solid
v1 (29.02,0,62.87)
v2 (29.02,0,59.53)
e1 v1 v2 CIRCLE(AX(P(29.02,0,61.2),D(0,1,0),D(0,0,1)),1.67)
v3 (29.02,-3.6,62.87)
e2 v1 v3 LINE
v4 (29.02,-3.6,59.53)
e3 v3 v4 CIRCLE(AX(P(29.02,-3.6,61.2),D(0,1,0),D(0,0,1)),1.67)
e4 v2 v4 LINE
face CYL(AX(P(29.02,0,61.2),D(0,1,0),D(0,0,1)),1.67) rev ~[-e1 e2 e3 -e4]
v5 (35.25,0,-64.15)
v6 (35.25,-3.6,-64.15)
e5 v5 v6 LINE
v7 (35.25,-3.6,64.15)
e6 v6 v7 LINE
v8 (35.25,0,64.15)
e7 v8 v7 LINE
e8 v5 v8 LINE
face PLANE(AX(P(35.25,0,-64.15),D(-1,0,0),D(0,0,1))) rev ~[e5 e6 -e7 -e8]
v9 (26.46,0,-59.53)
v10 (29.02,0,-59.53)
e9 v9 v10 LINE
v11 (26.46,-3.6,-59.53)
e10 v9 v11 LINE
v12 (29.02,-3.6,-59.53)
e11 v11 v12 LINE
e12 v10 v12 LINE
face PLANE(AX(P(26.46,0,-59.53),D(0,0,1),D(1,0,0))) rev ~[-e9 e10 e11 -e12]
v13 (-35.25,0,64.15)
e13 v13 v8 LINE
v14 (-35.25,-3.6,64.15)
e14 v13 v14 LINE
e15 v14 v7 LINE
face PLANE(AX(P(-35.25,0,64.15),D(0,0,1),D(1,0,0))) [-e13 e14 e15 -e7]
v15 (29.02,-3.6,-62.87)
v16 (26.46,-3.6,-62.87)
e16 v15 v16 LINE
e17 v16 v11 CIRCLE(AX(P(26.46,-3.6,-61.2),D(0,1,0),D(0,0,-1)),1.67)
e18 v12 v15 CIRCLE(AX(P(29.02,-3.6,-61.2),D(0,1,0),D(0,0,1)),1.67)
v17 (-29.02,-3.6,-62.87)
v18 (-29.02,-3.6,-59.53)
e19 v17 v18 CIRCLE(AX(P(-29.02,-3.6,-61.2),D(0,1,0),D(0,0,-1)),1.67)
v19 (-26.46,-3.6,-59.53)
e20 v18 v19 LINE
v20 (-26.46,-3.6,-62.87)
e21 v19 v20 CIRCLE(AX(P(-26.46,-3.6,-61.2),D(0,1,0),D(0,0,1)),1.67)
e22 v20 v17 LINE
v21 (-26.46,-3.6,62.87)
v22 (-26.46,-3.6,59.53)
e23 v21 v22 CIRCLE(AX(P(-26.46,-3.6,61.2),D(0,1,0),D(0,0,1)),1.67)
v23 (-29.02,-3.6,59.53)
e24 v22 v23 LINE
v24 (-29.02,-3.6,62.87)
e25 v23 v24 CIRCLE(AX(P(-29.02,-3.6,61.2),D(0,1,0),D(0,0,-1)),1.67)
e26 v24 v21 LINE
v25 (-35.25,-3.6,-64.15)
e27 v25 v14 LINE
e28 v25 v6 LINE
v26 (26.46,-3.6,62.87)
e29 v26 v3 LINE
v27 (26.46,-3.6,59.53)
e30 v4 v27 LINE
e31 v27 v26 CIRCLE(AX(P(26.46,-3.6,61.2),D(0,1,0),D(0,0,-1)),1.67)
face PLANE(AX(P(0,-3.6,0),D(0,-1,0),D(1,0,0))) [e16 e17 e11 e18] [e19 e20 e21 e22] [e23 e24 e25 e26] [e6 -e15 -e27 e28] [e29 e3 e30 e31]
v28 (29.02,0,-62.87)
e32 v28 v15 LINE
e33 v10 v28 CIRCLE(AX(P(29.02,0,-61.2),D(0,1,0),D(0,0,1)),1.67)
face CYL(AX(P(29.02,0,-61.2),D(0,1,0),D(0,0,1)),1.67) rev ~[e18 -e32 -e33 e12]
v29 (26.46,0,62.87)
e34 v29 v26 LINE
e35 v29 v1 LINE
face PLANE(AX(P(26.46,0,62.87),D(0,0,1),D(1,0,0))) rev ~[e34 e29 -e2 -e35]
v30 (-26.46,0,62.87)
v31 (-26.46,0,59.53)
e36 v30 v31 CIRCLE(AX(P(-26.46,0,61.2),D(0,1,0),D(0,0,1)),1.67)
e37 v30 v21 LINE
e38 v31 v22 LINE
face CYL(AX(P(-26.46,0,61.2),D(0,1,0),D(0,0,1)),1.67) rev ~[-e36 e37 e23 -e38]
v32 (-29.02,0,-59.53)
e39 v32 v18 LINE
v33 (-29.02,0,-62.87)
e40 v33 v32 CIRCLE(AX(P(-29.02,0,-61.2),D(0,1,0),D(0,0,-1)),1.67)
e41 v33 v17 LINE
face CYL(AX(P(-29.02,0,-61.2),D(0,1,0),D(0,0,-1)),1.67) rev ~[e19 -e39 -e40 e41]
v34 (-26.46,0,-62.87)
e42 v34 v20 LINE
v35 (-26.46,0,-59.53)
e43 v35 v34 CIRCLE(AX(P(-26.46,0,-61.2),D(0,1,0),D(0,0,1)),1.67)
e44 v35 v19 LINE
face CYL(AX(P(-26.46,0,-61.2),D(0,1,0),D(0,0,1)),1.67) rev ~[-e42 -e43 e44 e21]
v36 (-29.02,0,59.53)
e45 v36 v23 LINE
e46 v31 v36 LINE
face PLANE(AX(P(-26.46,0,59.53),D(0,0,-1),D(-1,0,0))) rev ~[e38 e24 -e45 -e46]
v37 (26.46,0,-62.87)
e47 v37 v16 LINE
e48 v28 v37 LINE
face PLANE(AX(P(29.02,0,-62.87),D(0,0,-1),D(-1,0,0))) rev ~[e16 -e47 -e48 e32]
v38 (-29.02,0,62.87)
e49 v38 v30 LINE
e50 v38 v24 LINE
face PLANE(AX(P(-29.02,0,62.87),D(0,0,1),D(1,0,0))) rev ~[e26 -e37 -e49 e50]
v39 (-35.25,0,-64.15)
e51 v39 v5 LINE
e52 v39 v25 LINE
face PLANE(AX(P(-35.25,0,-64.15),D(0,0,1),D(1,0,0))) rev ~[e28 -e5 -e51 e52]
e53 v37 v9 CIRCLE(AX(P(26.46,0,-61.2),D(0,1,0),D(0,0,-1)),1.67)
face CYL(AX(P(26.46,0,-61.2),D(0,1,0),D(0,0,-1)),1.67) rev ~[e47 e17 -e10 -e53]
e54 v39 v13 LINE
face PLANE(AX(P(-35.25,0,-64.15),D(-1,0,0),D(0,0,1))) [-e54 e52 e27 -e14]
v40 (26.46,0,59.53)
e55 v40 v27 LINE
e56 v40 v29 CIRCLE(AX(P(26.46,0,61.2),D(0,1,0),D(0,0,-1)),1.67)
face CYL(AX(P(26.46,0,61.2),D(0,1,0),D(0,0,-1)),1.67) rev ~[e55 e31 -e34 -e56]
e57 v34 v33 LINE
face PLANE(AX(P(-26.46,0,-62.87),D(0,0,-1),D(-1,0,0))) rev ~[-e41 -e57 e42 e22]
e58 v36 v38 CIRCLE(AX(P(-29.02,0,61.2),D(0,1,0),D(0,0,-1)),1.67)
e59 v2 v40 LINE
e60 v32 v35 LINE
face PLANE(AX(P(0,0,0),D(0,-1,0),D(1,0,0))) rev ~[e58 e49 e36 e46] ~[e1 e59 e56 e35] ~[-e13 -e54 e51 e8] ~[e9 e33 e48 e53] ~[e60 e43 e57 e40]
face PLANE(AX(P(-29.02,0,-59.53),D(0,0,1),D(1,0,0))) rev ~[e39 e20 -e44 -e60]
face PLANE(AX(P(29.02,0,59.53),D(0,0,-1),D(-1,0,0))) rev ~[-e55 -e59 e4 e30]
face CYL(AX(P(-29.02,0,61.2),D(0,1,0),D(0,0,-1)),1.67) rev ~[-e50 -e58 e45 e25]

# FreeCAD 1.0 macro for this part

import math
import FreeCAD as App
import Part
import Sketcher

doc = App.newDocument("Part")
body = doc.addObject("PartDesign::Body", "Body")

# Sketch on XZ plane
sketch1 = doc.addObject("Sketcher::SketchObject", "Sketch")
body.addObject(sketch1)
sketch1.AttachmentSupport = (doc.XZ_Plane, [""])
sketch1.MapMode = "FlatFace"
sketch1.addGeometry([
    Part.LineSegment(App.Vector(-35.2, 64.2, 0), App.Vector(-35.2, -64.2, 0)),  # 0
    Part.LineSegment(App.Vector(-35.2, -64.2, 0), App.Vector(35.2, -64.2, 0)),  # 1
    Part.LineSegment(App.Vector(35.2, -64.2, 0), App.Vector(35.2, 64.2, 0)),  # 2
    Part.LineSegment(App.Vector(35.2, 64.2, 0), App.Vector(-35.2, 64.2, 0)),  # 3
    Part.ArcOfCircle(Part.Circle(App.Vector(-26.5, -61.2, 0), App.Vector(0, 0, 1), 1.7), math.radians(-90), math.radians(90)),  # 4
    Part.LineSegment(App.Vector(-26.5, -62.9, 0), App.Vector(-29, -62.9, 0)),  # 5
    Part.ArcOfCircle(Part.Circle(App.Vector(-29, -61.2, 0), App.Vector(0, 0, 1), 1.7), math.radians(90), math.radians(270)),  # 6
    Part.LineSegment(App.Vector(-29, -59.5, 0), App.Vector(-26.5, -59.5, 0)),  # 7
    Part.LineSegment(App.Vector(29, -62.9, 0), App.Vector(26.5, -62.9, 0)),  # 8
    Part.ArcOfCircle(Part.Circle(App.Vector(26.5, -61.2, 0), App.Vector(0, 0, 1), 1.7), math.radians(90), math.radians(270)),  # 9
    Part.LineSegment(App.Vector(26.5, -59.5, 0), App.Vector(29, -59.5, 0)),  # 10
    Part.ArcOfCircle(Part.Circle(App.Vector(29, -61.2, 0), App.Vector(0, 0, 1), 1.7), math.radians(-90), math.radians(90)),  # 11
    Part.LineSegment(App.Vector(-26.5, 59.5, 0), App.Vector(-29, 59.5, 0)),  # 12
    Part.ArcOfCircle(Part.Circle(App.Vector(-29, 61.2, 0), App.Vector(0, 0, 1), 1.7), math.radians(90), math.radians(270)),  # 13
    Part.LineSegment(App.Vector(-29, 62.9, 0), App.Vector(-26.5, 62.9, 0)),  # 14
    Part.ArcOfCircle(Part.Circle(App.Vector(-26.5, 61.2, 0), App.Vector(0, 0, 1), 1.7), math.radians(-90), math.radians(90)),  # 15
    Part.ArcOfCircle(Part.Circle(App.Vector(26.5, 61.2, 0), App.Vector(0, 0, 1), 1.7), math.radians(90), math.radians(270)),  # 16
    Part.LineSegment(App.Vector(26.5, 62.9, 0), App.Vector(29, 62.9, 0)),  # 17
    Part.ArcOfCircle(Part.Circle(App.Vector(29, 61.2, 0), App.Vector(0, 0, 1), 1.7), math.radians(-90), math.radians(90)),  # 18
    Part.LineSegment(App.Vector(29, 59.5, 0), App.Vector(26.5, 59.5, 0)),  # 19
], False)
sketch1.addConstraint([
    Sketcher.Constraint("Coincident", 0, 2, 1, 1),
    Sketcher.Constraint("Coincident", 1, 2, 2, 1),
    Sketcher.Constraint("Coincident", 2, 2, 3, 1),
    Sketcher.Constraint("Coincident", 3, 2, 0, 1),
    Sketcher.Constraint("Tangent", 4, 1, 5, 1),
    Sketcher.Constraint("Tangent", 5, 2, 6, 2),
    Sketcher.Constraint("Tangent", 6, 1, 7, 1),
    Sketcher.Constraint("Tangent", 7, 2, 4, 2),
    Sketcher.Constraint("Tangent", 8, 2, 9, 2),
    Sketcher.Constraint("Tangent", 9, 1, 10, 1),
    Sketcher.Constraint("Tangent", 10, 2, 11, 2),
    Sketcher.Constraint("Tangent", 11, 1, 8, 1),
    Sketcher.Constraint("Tangent", 12, 2, 13, 2),
    Sketcher.Constraint("Tangent", 13, 1, 14, 1),
    Sketcher.Constraint("Tangent", 14, 2, 15, 2),
    Sketcher.Constraint("Tangent", 15, 1, 12, 1),
    Sketcher.Constraint("Tangent", 16, 1, 17, 1),
    Sketcher.Constraint("Tangent", 17, 2, 18, 2),
    Sketcher.Constraint("Tangent", 18, 1, 19, 1),
    Sketcher.Constraint("Tangent", 19, 2, 16, 2),
    Sketcher.Constraint("Vertical", 0),
    Sketcher.Constraint("Horizontal", 1),
    Sketcher.Constraint("Vertical", 2),
    Sketcher.Constraint("Horizontal", 3),
    Sketcher.Constraint("Horizontal", 5),
    Sketcher.Constraint("Horizontal", 7),
    Sketcher.Constraint("Horizontal", 8),
    Sketcher.Constraint("Horizontal", 10),
    Sketcher.Constraint("Horizontal", 12),
    Sketcher.Constraint("Horizontal", 14),
    Sketcher.Constraint("Horizontal", 17),
    Sketcher.Constraint("Horizontal", 19),
    Sketcher.Constraint("Equal", 6, 9),
    Sketcher.Constraint("Equal", 11, 13),
    Sketcher.Constraint("Equal", 15, 16),
    Sketcher.Constraint("Symmetric", 11, 3, 13, 3, -1, 1),
    Sketcher.Constraint("Symmetric", 4, 3, 16, 3, -1, 1),
    Sketcher.Constraint("Symmetric", 0, 2, 2, 2, -1, 1),
    Sketcher.Constraint("Symmetric", 4, 3, 9, 3, -2),
    Sketcher.Constraint("Vertical", 6, 3, 13, 3),
    Sketcher.Constraint("Vertical", 4, 3, 15, 3),
    Sketcher.Constraint("Vertical", 11, 3, 18, 3),
    Sketcher.Constraint("Radius", 4, 1.67),
    Sketcher.Constraint("DistanceX", 1, 1, 1, 2, 70.5),
    Sketcher.Constraint("DistanceY", 0, 2, 0, 1, 128.3),
    Sketcher.Constraint("DistanceX", 5, 2, 5, 1, 2.56),
    Sketcher.Constraint("DistanceY", 4, 3, -1, 1, 61.2),
    Sketcher.Constraint("DistanceX", 4, 3, -1, 1, 26.46),
])
pad1 = doc.addObject("PartDesign::Pad", "Pad")
body.addObject(pad1)
pad1.Profile = sketch1
pad1.Length = 3.6

doc.recompute()
